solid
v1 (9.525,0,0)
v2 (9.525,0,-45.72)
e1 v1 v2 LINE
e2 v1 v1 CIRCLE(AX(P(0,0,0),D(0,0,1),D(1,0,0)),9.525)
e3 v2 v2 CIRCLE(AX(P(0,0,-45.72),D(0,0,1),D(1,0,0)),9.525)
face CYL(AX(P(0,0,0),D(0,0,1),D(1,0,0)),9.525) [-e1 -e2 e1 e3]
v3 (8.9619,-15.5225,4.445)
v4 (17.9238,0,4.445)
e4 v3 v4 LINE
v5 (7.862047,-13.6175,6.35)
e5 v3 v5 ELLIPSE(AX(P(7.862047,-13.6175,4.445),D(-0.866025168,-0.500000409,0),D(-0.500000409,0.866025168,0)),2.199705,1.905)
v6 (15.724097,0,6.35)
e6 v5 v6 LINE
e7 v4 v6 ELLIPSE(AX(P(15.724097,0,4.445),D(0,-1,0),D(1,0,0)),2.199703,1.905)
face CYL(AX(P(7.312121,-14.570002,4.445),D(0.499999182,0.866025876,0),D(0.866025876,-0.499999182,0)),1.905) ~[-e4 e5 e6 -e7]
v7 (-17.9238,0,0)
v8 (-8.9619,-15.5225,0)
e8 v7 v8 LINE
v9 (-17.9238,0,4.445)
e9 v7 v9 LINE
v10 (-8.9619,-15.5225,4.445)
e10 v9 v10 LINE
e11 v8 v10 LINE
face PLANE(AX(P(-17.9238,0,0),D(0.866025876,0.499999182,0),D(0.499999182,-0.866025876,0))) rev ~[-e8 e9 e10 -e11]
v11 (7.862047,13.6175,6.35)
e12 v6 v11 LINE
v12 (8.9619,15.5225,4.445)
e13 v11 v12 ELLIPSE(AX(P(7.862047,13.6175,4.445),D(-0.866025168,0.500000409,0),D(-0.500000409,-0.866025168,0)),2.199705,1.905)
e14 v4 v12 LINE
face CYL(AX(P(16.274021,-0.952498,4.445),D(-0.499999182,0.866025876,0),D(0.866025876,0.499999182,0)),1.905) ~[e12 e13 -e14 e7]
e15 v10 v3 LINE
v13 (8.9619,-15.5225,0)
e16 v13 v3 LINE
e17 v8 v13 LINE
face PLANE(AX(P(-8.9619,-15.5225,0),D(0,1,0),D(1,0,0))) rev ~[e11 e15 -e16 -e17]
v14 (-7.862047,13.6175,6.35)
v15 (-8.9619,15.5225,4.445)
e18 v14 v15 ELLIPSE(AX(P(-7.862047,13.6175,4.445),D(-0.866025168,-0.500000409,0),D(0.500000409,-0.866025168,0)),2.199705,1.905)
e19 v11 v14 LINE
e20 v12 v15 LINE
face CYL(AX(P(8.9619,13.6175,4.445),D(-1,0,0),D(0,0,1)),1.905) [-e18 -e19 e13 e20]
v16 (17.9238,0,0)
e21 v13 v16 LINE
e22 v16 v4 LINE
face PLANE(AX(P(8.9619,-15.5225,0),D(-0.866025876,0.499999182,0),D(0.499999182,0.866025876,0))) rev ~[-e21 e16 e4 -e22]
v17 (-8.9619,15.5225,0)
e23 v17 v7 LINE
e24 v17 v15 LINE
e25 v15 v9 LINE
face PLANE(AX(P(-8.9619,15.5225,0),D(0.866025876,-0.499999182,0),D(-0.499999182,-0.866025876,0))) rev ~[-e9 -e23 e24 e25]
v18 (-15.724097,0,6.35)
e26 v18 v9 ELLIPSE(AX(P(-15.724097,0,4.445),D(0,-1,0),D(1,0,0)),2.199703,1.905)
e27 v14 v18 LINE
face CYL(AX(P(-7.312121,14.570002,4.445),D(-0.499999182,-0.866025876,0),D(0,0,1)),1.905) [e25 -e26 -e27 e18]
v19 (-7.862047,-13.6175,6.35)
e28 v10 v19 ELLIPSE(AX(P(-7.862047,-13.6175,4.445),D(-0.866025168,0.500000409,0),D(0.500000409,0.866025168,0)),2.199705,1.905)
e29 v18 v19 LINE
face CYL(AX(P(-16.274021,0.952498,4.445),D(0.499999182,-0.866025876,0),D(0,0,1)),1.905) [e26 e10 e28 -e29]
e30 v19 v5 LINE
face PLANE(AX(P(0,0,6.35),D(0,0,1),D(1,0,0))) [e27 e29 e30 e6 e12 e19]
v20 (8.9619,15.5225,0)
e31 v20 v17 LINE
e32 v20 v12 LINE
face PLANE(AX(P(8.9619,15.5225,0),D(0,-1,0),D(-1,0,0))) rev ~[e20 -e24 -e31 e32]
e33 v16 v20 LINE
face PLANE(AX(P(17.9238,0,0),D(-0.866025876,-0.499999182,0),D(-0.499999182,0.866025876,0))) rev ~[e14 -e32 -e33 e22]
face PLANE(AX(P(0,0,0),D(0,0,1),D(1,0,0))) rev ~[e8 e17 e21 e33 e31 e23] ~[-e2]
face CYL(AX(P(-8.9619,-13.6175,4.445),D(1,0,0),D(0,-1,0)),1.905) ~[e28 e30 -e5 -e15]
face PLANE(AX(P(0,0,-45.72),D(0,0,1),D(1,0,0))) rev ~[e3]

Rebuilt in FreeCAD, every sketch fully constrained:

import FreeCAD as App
import Part
import Sketcher

V = App.Vector
Q = App.Units.Quantity


def edges_at(feature, points):
    """Names of the edges that pass closest to the given points."""
    edges = feature.Shape.Edges
    near = lambda p: min(range(len(edges)), key=lambda i: edges[i].distToShape(Part.Vertex(*p))[0])
    return sorted({f"Edge{near(p) + 1}" for p in points})

doc = App.newDocument("Part")
params = doc.addObject("Spreadsheet::Sheet", "Params")
for row, (alias, value) in enumerate([
    ("sketch1_diameter", "0.75 in"),
    ("pad1_length", "1.8 in"),
    ("pad2_length", "0.25 in"),
    ("fillet_radius", "0.075 in"),
], start=1):
    params.set(f"A{row}", alias)
    params.set(f"B{row}", "=" + value)
    params.setAlias(f"B{row}", alias)

body = doc.addObject("PartDesign::Body", "Body")

# Sketch on XY plane
sketch1 = body.newObject("Sketcher::SketchObject", "Sketch")
sketch1.AttachmentSupport = (doc.getObject("XY_Plane"), [""])
sketch1.MapMode = "FlatFace"
sketch1.addGeometry(Part.Circle(V(0, 0, 0), V(0, 0, 1), 10), False)
sketch1.addConstraint([
    Sketcher.Constraint("Coincident", 0, 3, -1, 1),
    Sketcher.Constraint("Diameter", 0, Q("0.75 in")),
])
sketch1.setExpression("Constraints[1]", "Params.sketch1_diameter")
pad1 = body.newObject("PartDesign::Pad", "Pad")
pad1.Profile = sketch1
pad1.setExpression("Length", "Params.pad1_length")
pad1.Reversed = True

# Sketch on XY plane
sketch2 = body.newObject("Sketcher::SketchObject", "Sketch001")
sketch2.AttachmentSupport = (doc.getObject("XY_Plane"), [""])
sketch2.MapMode = "FlatFace"
sketch2.addGeometry([
    Part.LineSegment(V(-9, -16, 0), V(9, -16, 0)),  # 0
    Part.LineSegment(V(9, -16, 0), V(18, 0, 0)),  # 1
    Part.LineSegment(V(18, 0, 0), V(9, 16, 0)),  # 2
    Part.LineSegment(V(9, 16, 0), V(-9, 16, 0)),  # 3
    Part.LineSegment(V(-9, 16, 0), V(-18, 0, 0)),  # 4
    Part.LineSegment(V(-18, 0, 0), V(-9, -16, 0)),  # 5
], False)
sketch2.addConstraint([
    Sketcher.Constraint("Coincident", 0, 2, 1, 1),
    Sketcher.Constraint("Coincident", 1, 2, 2, 1),
    Sketcher.Constraint("Coincident", 2, 2, 3, 1),
    Sketcher.Constraint("Coincident", 3, 2, 4, 1),
    Sketcher.Constraint("Coincident", 4, 2, 5, 1),
    Sketcher.Constraint("Coincident", 5, 2, 0, 1),
    Sketcher.Constraint("Horizontal", 0),
    Sketcher.Constraint("Horizontal", 3),
    Sketcher.Constraint("Symmetric", 0, 2, 3, 2, -1, 1),
    Sketcher.Constraint("Symmetric", 1, 2, 4, 2, -1, 1),
    Sketcher.Constraint("PointOnObject", 1, 2, -1),
    Sketcher.Constraint("Parallel", 2, 5),
    Sketcher.Constraint("Vertical", 0, 2, 2, 2),
    Sketcher.Constraint("Angle", 1, Q("60 deg")),
    Sketcher.Constraint("DistanceX", 0, 1, 0, 2, 17.9238),
    Sketcher.Constraint("DistanceX", 3, 2, 1, 2, Q("1.0585 in")),
])
pad2 = body.newObject("PartDesign::Pad", "Pad001")
pad2.Profile = sketch2
pad2.setExpression("Length", "Params.pad2_length")
doc.recompute()

fillet = body.newObject("PartDesign::Fillet", "Fillet")
fillet.Base = (pad2, edges_at(pad2, [
    (13.443, -7.761, 6.35),
    (0, -15.523, 6.35),
    (-13.443, -7.761, 6.35),
    (-13.443, 7.761, 6.35),
    (0, 15.523, 6.35),
    (13.443, 7.761, 6.35),
]))
fillet.setExpression("Radius", "Params.fillet_radius")

doc.recompute()
